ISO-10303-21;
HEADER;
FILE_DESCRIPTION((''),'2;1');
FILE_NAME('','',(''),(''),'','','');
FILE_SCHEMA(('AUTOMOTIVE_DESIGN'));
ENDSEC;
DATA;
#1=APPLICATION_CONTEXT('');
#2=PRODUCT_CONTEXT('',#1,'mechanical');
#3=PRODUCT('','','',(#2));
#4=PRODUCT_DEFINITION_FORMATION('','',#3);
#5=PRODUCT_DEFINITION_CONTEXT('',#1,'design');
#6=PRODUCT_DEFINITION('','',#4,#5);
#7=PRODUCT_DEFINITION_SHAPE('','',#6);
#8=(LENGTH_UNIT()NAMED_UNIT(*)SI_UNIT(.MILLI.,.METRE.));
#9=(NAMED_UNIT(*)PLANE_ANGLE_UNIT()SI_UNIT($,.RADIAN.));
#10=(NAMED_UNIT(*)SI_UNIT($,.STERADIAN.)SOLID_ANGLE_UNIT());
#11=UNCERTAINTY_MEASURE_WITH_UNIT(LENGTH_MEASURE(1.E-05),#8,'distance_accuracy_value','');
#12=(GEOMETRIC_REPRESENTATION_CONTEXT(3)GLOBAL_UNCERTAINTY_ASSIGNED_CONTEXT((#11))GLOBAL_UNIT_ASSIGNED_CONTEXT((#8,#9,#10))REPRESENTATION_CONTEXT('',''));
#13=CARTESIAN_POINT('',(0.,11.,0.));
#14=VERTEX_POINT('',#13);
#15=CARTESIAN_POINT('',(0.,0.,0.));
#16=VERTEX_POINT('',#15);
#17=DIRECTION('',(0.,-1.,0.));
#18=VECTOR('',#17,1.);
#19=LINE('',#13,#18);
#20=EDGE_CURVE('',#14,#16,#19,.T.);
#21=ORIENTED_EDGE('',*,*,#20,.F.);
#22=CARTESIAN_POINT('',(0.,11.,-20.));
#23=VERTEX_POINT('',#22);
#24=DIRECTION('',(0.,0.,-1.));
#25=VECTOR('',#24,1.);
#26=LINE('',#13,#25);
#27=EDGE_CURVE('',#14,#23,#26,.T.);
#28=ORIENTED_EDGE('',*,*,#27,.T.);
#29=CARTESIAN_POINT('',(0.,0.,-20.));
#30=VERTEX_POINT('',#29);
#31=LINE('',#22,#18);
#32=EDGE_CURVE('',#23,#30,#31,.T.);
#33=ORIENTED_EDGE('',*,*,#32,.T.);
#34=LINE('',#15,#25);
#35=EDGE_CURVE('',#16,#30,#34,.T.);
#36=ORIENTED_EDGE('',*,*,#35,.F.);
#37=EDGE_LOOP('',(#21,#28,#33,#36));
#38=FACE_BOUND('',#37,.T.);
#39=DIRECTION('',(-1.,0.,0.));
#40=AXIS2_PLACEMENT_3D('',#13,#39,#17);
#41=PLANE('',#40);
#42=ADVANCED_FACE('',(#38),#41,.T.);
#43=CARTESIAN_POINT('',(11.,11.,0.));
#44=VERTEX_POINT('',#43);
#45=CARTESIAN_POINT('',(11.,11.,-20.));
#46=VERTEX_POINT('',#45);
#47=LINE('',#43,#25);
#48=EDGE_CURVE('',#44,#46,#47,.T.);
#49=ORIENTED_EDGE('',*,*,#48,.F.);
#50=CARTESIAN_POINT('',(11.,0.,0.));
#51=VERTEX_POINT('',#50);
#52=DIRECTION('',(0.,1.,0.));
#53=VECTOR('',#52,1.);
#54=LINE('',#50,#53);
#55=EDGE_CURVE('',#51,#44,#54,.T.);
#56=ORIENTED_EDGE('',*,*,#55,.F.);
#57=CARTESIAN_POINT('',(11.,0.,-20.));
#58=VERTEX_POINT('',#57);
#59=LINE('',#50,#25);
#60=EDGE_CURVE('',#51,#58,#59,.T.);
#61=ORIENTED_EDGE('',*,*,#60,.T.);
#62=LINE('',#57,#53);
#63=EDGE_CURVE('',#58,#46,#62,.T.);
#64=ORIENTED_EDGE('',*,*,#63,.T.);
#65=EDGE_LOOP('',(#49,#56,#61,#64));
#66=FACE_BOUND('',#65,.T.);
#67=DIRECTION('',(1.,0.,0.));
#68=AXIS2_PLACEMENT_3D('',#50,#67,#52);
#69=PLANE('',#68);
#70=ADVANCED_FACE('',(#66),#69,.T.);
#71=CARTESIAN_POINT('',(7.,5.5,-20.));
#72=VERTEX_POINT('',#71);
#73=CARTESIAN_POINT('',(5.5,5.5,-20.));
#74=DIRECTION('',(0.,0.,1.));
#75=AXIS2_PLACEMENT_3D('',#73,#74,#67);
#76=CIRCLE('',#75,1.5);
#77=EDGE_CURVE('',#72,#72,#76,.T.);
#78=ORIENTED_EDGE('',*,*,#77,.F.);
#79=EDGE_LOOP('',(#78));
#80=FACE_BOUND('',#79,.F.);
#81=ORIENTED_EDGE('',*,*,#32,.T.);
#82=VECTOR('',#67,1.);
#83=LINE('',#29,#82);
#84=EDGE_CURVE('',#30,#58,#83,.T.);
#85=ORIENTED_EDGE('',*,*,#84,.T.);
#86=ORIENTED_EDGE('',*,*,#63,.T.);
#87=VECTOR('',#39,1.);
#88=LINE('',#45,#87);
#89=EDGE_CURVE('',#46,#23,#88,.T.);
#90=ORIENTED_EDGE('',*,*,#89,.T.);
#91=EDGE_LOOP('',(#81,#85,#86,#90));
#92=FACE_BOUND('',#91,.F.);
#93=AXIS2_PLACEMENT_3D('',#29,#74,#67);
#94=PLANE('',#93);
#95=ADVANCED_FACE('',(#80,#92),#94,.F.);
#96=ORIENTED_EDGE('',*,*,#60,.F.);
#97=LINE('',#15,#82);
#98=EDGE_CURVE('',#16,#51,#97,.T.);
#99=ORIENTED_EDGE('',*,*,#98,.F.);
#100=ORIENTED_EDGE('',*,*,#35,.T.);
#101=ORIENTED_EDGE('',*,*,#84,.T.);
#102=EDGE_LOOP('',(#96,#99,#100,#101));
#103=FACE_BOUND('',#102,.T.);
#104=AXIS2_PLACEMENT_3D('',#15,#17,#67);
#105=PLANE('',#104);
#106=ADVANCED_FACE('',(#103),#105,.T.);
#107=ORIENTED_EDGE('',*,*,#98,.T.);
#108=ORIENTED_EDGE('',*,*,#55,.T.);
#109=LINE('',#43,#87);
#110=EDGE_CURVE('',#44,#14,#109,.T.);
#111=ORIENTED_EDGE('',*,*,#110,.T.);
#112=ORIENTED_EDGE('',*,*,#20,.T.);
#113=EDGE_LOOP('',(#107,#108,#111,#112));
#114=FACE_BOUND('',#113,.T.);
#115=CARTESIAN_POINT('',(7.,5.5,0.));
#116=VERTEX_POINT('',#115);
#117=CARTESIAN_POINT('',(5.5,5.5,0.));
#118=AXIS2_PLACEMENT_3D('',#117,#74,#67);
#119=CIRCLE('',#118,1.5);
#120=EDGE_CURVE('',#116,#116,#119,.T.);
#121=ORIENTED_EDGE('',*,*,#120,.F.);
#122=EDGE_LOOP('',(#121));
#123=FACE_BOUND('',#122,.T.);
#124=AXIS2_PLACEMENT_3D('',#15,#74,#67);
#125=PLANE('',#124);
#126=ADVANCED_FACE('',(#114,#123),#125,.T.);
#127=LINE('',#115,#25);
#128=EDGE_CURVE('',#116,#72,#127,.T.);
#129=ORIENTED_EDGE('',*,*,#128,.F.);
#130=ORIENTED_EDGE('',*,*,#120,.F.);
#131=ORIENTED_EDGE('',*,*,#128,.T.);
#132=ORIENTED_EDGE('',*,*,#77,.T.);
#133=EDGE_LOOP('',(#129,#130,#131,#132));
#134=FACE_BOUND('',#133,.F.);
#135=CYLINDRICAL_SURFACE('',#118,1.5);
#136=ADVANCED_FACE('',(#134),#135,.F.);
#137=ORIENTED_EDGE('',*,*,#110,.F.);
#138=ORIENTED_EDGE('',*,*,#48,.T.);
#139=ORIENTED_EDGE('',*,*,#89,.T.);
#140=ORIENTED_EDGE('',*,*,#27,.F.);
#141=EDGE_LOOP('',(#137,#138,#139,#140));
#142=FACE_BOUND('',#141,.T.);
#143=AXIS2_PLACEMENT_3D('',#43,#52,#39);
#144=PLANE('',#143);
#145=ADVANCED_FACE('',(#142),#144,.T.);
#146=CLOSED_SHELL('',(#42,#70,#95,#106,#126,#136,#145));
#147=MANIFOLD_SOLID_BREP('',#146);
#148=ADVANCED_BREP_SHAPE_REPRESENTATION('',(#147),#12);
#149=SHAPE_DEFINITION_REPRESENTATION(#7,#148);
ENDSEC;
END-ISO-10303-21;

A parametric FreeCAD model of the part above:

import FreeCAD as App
import Part
import Sketcher
from FreeCAD import Vector
Q = App.Units.Quantity


def add_polygon(sketch, points):
    """Adds a closed chain of lines whose ends are joined by coincident constraints."""
    first, n = sketch.GeometryCount, len(points)
    for a, b in zip(points, points[1:] + points[:1]):
        sketch.addGeometry(Part.LineSegment(App.Vector(*a, 0), App.Vector(*b, 0)), False)
    for i in range(n):
        sketch.addConstraint(Sketcher.Constraint("Coincident", first + i, 2, first + (i + 1) % n, 1))

doc = App.newDocument("Part")
body = doc.addObject("PartDesign::Body", "Body")

sketch1 = doc.addObject("Sketcher::SketchObject", "Sketch")
body.addObject(sketch1)
sketch1.AttachmentSupport = (doc.XY_Plane, [""])
sketch1.MapMode = "FlatFace"
add_polygon(sketch1, [(0, 11), (0, 0), (11, 0), (11, 11)])
sketch1.addGeometry(Part.Circle(Vector(5.5, 5.5, 0), Vector(0, 0, 1), 1.5), False)
sketch1.addConstraint([
    Sketcher.Constraint("Vertical", 0),
    Sketcher.Constraint("Horizontal", 1),
    Sketcher.Constraint("Vertical", 2),
    Sketcher.Constraint("Horizontal", 3),
    Sketcher.Constraint("Coincident", 0, 2, -1, 1),
    Sketcher.Constraint("Equal", 3, 0),
    Sketcher.Constraint("Diameter", 4, Q("3 mm")),
    Sketcher.Constraint("DistanceX", 1, 1, 1, 2, Q("11 mm")),
    Sketcher.Constraint("DistanceX", -1, 1, 4, 3, Q("5.5 mm")),
    Sketcher.Constraint("DistanceY", -1, 1, 4, 3, Q("5.5 mm")),
])
pad1 = doc.addObject("PartDesign::Pad", "Pad")
body.addObject(pad1)
pad1.Profile = sketch1
pad1.Length = 20
pad1.Reversed = True

doc.recompute()
